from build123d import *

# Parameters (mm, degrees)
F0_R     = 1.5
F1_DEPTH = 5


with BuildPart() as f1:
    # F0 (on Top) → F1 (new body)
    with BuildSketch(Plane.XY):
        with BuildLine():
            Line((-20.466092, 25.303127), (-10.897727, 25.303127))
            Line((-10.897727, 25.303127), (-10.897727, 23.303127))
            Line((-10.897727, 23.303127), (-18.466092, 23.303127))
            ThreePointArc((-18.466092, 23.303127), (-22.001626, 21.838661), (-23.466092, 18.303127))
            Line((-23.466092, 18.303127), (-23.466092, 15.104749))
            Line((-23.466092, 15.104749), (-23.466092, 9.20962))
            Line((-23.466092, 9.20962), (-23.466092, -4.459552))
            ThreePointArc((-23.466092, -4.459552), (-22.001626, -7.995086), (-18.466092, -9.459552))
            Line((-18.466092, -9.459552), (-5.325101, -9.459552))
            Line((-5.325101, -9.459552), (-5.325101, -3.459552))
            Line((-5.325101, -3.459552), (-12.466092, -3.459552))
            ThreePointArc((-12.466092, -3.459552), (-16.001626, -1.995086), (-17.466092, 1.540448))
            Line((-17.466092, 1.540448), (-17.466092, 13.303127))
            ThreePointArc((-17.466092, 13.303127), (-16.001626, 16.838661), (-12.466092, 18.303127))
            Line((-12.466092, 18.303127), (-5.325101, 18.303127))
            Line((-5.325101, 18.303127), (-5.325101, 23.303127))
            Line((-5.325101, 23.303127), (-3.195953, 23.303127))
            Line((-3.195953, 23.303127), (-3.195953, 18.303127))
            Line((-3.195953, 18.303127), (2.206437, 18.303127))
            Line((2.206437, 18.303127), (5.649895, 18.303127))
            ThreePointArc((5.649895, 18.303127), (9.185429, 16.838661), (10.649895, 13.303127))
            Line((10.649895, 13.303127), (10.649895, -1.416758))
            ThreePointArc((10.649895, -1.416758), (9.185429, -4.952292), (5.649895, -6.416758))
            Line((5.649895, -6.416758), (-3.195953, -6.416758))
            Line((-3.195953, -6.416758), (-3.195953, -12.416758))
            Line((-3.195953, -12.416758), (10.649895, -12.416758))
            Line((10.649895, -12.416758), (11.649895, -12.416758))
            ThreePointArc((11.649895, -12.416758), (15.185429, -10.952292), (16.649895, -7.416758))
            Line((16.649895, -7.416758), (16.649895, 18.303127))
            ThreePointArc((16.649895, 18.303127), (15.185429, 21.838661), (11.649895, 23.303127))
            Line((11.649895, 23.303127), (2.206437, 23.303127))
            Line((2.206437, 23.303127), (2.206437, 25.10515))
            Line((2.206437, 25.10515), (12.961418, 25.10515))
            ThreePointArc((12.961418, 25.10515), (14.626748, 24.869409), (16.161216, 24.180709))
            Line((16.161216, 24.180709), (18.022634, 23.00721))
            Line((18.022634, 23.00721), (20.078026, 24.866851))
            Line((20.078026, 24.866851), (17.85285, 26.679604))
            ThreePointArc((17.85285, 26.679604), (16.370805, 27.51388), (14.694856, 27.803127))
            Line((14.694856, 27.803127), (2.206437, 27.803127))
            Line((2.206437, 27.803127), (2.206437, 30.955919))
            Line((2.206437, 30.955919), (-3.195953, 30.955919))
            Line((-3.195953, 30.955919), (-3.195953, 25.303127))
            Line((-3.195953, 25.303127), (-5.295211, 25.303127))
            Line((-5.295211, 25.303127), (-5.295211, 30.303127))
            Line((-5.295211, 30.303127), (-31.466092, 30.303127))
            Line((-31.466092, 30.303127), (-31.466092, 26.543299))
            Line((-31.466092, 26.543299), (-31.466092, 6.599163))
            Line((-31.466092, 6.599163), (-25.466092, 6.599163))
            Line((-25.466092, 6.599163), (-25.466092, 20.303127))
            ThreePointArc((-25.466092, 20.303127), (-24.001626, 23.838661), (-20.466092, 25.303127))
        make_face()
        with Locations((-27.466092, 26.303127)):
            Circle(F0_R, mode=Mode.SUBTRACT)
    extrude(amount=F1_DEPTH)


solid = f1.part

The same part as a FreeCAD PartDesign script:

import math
import FreeCAD as App
import Part
import Sketcher

doc = App.newDocument("Part")
params = doc.addObject("Spreadsheet::Sheet", "Params")
for row, (alias, value) in enumerate([
    ("sketch1_diameter", "3 mm"),
    ("sketch1_radius", "5 mm"),
    ("sketch1_radius2", "5.000002 mm"),
    ("sketch1_width", "6 mm"),
    ("sketch1_height", "2 mm"),
    ("pad1_length", "5 mm"),
], start=1):
    params.set(f"A{row}", alias)
    params.set(f"B{row}", "=" + value)
    params.setAlias(f"B{row}", alias)

body = doc.addObject("PartDesign::Body", "Body")

# Sketch on XY plane
sketch1 = body.newObject("Sketcher::SketchObject", "Sketch")
sketch1.AttachmentSupport = (doc.getObject("XY_Plane"), [""])
sketch1.MapMode = "FlatFace"
sketch1.addGeometry([
    Part.LineSegment(App.Vector(-20.466092, 25.303127, 0), App.Vector(-10.897727, 25.303127, 0)),  # 0
    Part.LineSegment(App.Vector(-10.897727, 25.303127, 0), App.Vector(-10.897727, 23.303127, 0)),  # 1
    Part.LineSegment(App.Vector(-10.897727, 23.303127, 0), App.Vector(-18.466092, 23.303127, 0)),  # 2
    Part.ArcOfCircle(Part.Circle(App.Vector(-18.466092, 18.303127, 0), App.Vector(0, 0, 1), 5), math.radians(89.999996), math.radians(180.000004)),  # 3
    Part.LineSegment(App.Vector(-23.466092, 18.303127, 0), App.Vector(-23.466092, -4.459552, 0)),  # 4
    Part.ArcOfCircle(Part.Circle(App.Vector(-18.466092, -4.459552, 0), App.Vector(0, 0, 1), 5), math.radians(179.999996), math.radians(270.000004)),  # 5
    Part.LineSegment(App.Vector(-18.466092, -9.459552, 0), App.Vector(-5.325101, -9.459552, 0)),  # 6
    Part.LineSegment(App.Vector(-5.325101, -9.459552, 0), App.Vector(-5.325101, -3.459552, 0)),  # 7
    Part.LineSegment(App.Vector(-5.325101, -3.459552, 0), App.Vector(-12.466092, -3.459552, 0)),  # 8
    Part.ArcOfCircle(Part.Circle(App.Vector(-12.466092, 1.540448, 0), App.Vector(0, 0, 1), 5), math.radians(179.999996), math.radians(270.000004)),  # 9
    Part.LineSegment(App.Vector(-17.466092, 1.540448, 0), App.Vector(-17.466092, 13.303127, 0)),  # 10
    Part.ArcOfCircle(Part.Circle(App.Vector(-12.466092, 13.303127, 0), App.Vector(0, 0, 1), 5), math.radians(89.999996), math.radians(180.000004)),  # 11
    Part.LineSegment(App.Vector(-12.466092, 18.303127, 0), App.Vector(-5.325101, 18.303127, 0)),  # 12
    Part.LineSegment(App.Vector(-5.325101, 18.303127, 0), App.Vector(-5.325101, 23.303127, 0)),  # 13
    Part.LineSegment(App.Vector(-5.325101, 23.303127, 0), App.Vector(-3.195953, 23.303127, 0)),  # 14
    Part.LineSegment(App.Vector(-3.195953, 23.303127, 0), App.Vector(-3.195953, 18.303127, 0)),  # 15
    Part.LineSegment(App.Vector(-3.195953, 18.303127, 0), App.Vector(5.649895, 18.303127, 0)),  # 16
    Part.ArcOfCircle(Part.Circle(App.Vector(5.649895, 13.303127, 0), App.Vector(0, 0, 1), 5), math.radians(-0.000004), math.radians(90.000004)),  # 17
    Part.LineSegment(App.Vector(10.649895, 13.303127, 0), App.Vector(10.649895, -1.416758, 0)),  # 18
    Part.ArcOfCircle(Part.Circle(App.Vector(5.649895, -1.416758, 0), App.Vector(0, 0, 1), 5), math.radians(-90.000004), math.radians(0.000004)),  # 19
    Part.LineSegment(App.Vector(5.649895, -6.416758, 0), App.Vector(-3.195953, -6.416758, 0)),  # 20
    Part.LineSegment(App.Vector(-3.195953, -6.416758, 0), App.Vector(-3.195953, -12.416758, 0)),  # 21
    Part.LineSegment(App.Vector(-3.195953, -12.416758, 0), App.Vector(11.649895, -12.416758, 0)),  # 22
    Part.ArcOfCircle(Part.Circle(App.Vector(11.649895, -7.416758, 0), App.Vector(0, 0, 1), 5), math.radians(-90.000004), math.radians(0.000004)),  # 23
    Part.LineSegment(App.Vector(16.649895, -7.416758, 0), App.Vector(16.649895, 18.303127, 0)),  # 24
    Part.ArcOfCircle(Part.Circle(App.Vector(11.649895, 18.303127, 0), App.Vector(0, 0, 1), 5), math.radians(-0.000004), math.radians(90.000004)),  # 25
    Part.LineSegment(App.Vector(11.649895, 23.303127, 0), App.Vector(2.206437, 23.303127, 0)),  # 26
    Part.LineSegment(App.Vector(2.206437, 23.303127, 0), App.Vector(2.206437, 25.10515, 0)),  # 27
    Part.LineSegment(App.Vector(2.206437, 25.10515, 0), App.Vector(12.961418, 25.10515, 0)),  # 28
    Part.ArcOfCircle(Part.Circle(App.Vector(12.96142, 19.105155, 0), App.Vector(0, 0, 1), 5.999995), math.radians(57.771325), math.radians(90.000024)),  # 29
    Part.LineSegment(App.Vector(16.161216, 24.180709, 0), App.Vector(18.022634, 23.00721, 0)),  # 30
    Part.LineSegment(App.Vector(18.022634, 23.00721, 0), App.Vector(20.078026, 24.866851, 0)),  # 31
    Part.LineSegment(App.Vector(20.078026, 24.866851, 0), App.Vector(17.85285, 26.679604, 0)),  # 32
    Part.ArcOfCircle(Part.Circle(App.Vector(14.694855, 22.803125, 0), App.Vector(0, 0, 1), 5.000002), math.radians(50.83183), math.radians(89.999992)),  # 33
    Part.LineSegment(App.Vector(14.694856, 27.803127, 0), App.Vector(2.206437, 27.803127, 0)),  # 34
    Part.LineSegment(App.Vector(2.206437, 27.803127, 0), App.Vector(2.206437, 30.955919, 0)),  # 35
    Part.LineSegment(App.Vector(2.206437, 30.955919, 0), App.Vector(-3.195953, 30.955919, 0)),  # 36
    Part.LineSegment(App.Vector(-3.195953, 30.955919, 0), App.Vector(-3.195953, 25.303127, 0)),  # 37
    Part.LineSegment(App.Vector(-3.195953, 25.303127, 0), App.Vector(-5.295211, 25.303127, 0)),  # 38
    Part.LineSegment(App.Vector(-5.295211, 25.303127, 0), App.Vector(-5.295211, 30.303127, 0)),  # 39
    Part.LineSegment(App.Vector(-5.295211, 30.303127, 0), App.Vector(-31.466092, 30.303127, 0)),  # 40
    Part.LineSegment(App.Vector(-31.466092, 30.303127, 0), App.Vector(-31.466092, 6.599163, 0)),  # 41
    Part.LineSegment(App.Vector(-31.466092, 6.599163, 0), App.Vector(-25.466092, 6.599163, 0)),  # 42
    Part.LineSegment(App.Vector(-25.466092, 6.599163, 0), App.Vector(-25.466092, 20.303127, 0)),  # 43
    Part.ArcOfCircle(Part.Circle(App.Vector(-20.466092, 20.303127, 0), App.Vector(0, 0, 1), 5), math.radians(89.999996), math.radians(180.000004)),  # 44
    Part.Circle(App.Vector(-27.466092, 26.303127, 0), App.Vector(0, 0, 1), 1.5),  # 45
], False)
sketch1.addConstraint([
    Sketcher.Constraint("Coincident", 0, 2, 1, 1),
    Sketcher.Constraint("Coincident", 1, 2, 2, 1),
    Sketcher.Constraint("Tangent", 2, 2, 3, 1),
    Sketcher.Constraint("Tangent", 3, 2, 4, 1),
    Sketcher.Constraint("Tangent", 4, 2, 5, 1),
    Sketcher.Constraint("Tangent", 5, 2, 6, 1),
    Sketcher.Constraint("Coincident", 6, 2, 7, 1),
    Sketcher.Constraint("Coincident", 7, 2, 8, 1),
    Sketcher.Constraint("Tangent", 8, 2, 9, 2),
    Sketcher.Constraint("Tangent", 9, 1, 10, 1),
    Sketcher.Constraint("Tangent", 10, 2, 11, 2),
    Sketcher.Constraint("Tangent", 11, 1, 12, 1),
    Sketcher.Constraint("Coincident", 12, 2, 13, 1),
    Sketcher.Constraint("Coincident", 13, 2, 14, 1),
    Sketcher.Constraint("Coincident", 14, 2, 15, 1),
    Sketcher.Constraint("Coincident", 15, 2, 16, 1),
    Sketcher.Constraint("Tangent", 16, 2, 17, 2),
    Sketcher.Constraint("Tangent", 17, 1, 18, 1),
    Sketcher.Constraint("Tangent", 18, 2, 19, 2),
    Sketcher.Constraint("Tangent", 19, 1, 20, 1),
    Sketcher.Constraint("Coincident", 20, 2, 21, 1),
    Sketcher.Constraint("Coincident", 21, 2, 22, 1),
    Sketcher.Constraint("Tangent", 22, 2, 23, 1),
    Sketcher.Constraint("Tangent", 23, 2, 24, 1),
    Sketcher.Constraint("Tangent", 24, 2, 25, 1),
    Sketcher.Constraint("Tangent", 25, 2, 26, 1),
    Sketcher.Constraint("Coincident", 26, 2, 27, 1),
    Sketcher.Constraint("Coincident", 27, 2, 28, 1),
    Sketcher.Constraint("Tangent", 28, 2, 29, 2),
    Sketcher.Constraint("Tangent", 29, 1, 30, 1),
    Sketcher.Constraint("Coincident", 30, 2, 31, 1),
    Sketcher.Constraint("Coincident", 31, 2, 32, 1),
    Sketcher.Constraint("Tangent", 32, 2, 33, 1),
    Sketcher.Constraint("Tangent", 33, 2, 34, 1),
    Sketcher.Constraint("Coincident", 34, 2, 35, 1),
    Sketcher.Constraint("Coincident", 35, 2, 36, 1),
    Sketcher.Constraint("Coincident", 36, 2, 37, 1),
    Sketcher.Constraint("Coincident", 37, 2, 38, 1),
    Sketcher.Constraint("Coincident", 38, 2, 39, 1),
    Sketcher.Constraint("Coincident", 39, 2, 40, 1),
    Sketcher.Constraint("Coincident", 40, 2, 41, 1),
    Sketcher.Constraint("Coincident", 41, 2, 42, 1),
    Sketcher.Constraint("Coincident", 42, 2, 43, 1),
    Sketcher.Constraint("Tangent", 43, 2, 44, 2),
    Sketcher.Constraint("Tangent", 44, 1, 0, 1),
    Sketcher.Constraint("Horizontal", 0),
    Sketcher.Constraint("Vertical", 1),
    Sketcher.Constraint("Horizontal", 2),
    Sketcher.Constraint("Vertical", 4),
    Sketcher.Constraint("Horizontal", 6),
    Sketcher.Constraint("Vertical", 7),
    Sketcher.Constraint("Horizontal", 8),
    Sketcher.Constraint("Vertical", 10),
    Sketcher.Constraint("Horizontal", 12),
    Sketcher.Constraint("Vertical", 13),
    Sketcher.Constraint("Horizontal", 14),
    Sketcher.Constraint("Vertical", 15),
    Sketcher.Constraint("Horizontal", 16),
    Sketcher.Constraint("Vertical", 18),
    Sketcher.Constraint("Horizontal", 20),
    Sketcher.Constraint("Vertical", 21),
    Sketcher.Constraint("Horizontal", 22),
    Sketcher.Constraint("Vertical", 24),
    Sketcher.Constraint("Horizontal", 26),
    Sketcher.Constraint("Vertical", 27),
    Sketcher.Constraint("Horizontal", 28),
    Sketcher.Constraint("Horizontal", 34),
    Sketcher.Constraint("Vertical", 35),
    Sketcher.Constraint("Horizontal", 36),
    Sketcher.Constraint("Vertical", 37),
    Sketcher.Constraint("Horizontal", 38),
    Sketcher.Constraint("Vertical", 39),
    Sketcher.Constraint("Horizontal", 40),
    Sketcher.Constraint("Vertical", 41),
    Sketcher.Constraint("Horizontal", 42),
    Sketcher.Constraint("Vertical", 43),
    Sketcher.Constraint("Equal", 3, 5),
    Sketcher.Constraint("Equal", 5, 9),
    Sketcher.Constraint("Equal", 9, 11),
    Sketcher.Constraint("Equal", 11, 17),
    Sketcher.Constraint("Equal", 17, 19),
    Sketcher.Constraint("Equal", 19, 23),
    Sketcher.Constraint("Equal", 23, 25),
    Sketcher.Constraint("Equal", 25, 44),
    Sketcher.Constraint("Horizontal", 11, 3, 17, 3),
    Sketcher.Constraint("Horizontal", 3, 3, 25, 3),
    Sketcher.Constraint("Horizontal", 3, 2, 11, 1),
    Sketcher.Constraint("Horizontal", 2, 2, 13, 2),
    Sketcher.Constraint("Horizontal", 0, 2, 37, 2),
    Sketcher.Constraint("Vertical", 7, 2, 12, 2),
    Sketcher.Constraint("Vertical", 15, 2, 20, 2),
    Sketcher.Constraint("Vertical", 27, 2, 34, 2),
    Sketcher.Constraint("Vertical", 21, 2, 36, 2),
    Sketcher.Constraint("Equal", 42, 7),
    Sketcher.Constraint("Equal", 7, 21),
    Sketcher.Constraint("Equal", 15, 39),
    Sketcher.Constraint("Diameter", 45, 3.0),
    Sketcher.Constraint("Radius", 3, 5.0),
    Sketcher.Constraint("Radius", 33, 5.000002),
    Sketcher.Constraint("DistanceX", 42, 1, 42, 2, 6.0),
    Sketcher.Constraint("DistanceY", 1, 2, 1, 1, 2.0),
    Sketcher.Constraint("DistanceX", 5, 3, 9, 3, 6.0),
    Sketcher.Constraint("DistanceX", 19, 3, 23, 3, 6.0),
    Sketcher.Constraint("DistanceX", 44, 3, 3, 3, 2.0),
    Sketcher.Constraint("DistanceX", 45, 3, 44, 3, 7.0),
    Sketcher.Constraint("DistanceY", 44, 3, 45, 3, 6.0),
    Sketcher.Constraint("DistanceY", 16, 2, 33, 3, 4.499998),
    Sketcher.Constraint("Radius", 29, 5.999995),
    Sketcher.Constraint("Distance", 32, 2.870101),
    Sketcher.Constraint("DistanceX", 6, 1, 6, 2, 13.140991),
    Sketcher.Constraint("DistanceX", 14, 1, 14, 2, 2.129148),
    Sketcher.Constraint("DistanceX", 28, 1, 28, 2, 10.754981),
    Sketcher.Constraint("DistanceX", 34, 2, 34, 1, 12.488419),
    Sketcher.Constraint("DistanceX", 36, 2, 36, 1, 5.40239),
    Sketcher.Constraint("DistanceX", 38, 2, 38, 1, 2.099258),
    Sketcher.Constraint("DistanceY", 4, 2, 4, 1, 22.762679),
    Sketcher.Constraint("DistanceX", 6, 2, -1, 1, 5.325101),
    Sketcher.Constraint("DistanceX", 28, 2, 29, 1, 3.199798),
    Sketcher.Constraint("DistanceY", 30, 2, 29, 1, 1.173499),
    Sketcher.Constraint("DistanceY", 31, 2, 28, 2, 0.238299),
    Sketcher.Constraint("DistanceX", 0, 1, 0, 2, 9.568365),
    Sketcher.Constraint("DistanceX", 16, 1, 16, 2, 8.845848),
    Sketcher.Constraint("DistanceY", 18, 2, 18, 1, 14.719885),
    Sketcher.Constraint("DistanceY", 27, 1, 27, 2, 1.802023),
    Sketcher.Constraint("DistanceY", 35, 1, 35, 2, 3.152792),
    Sketcher.Constraint("DistanceY", 41, 2, 41, 1, 23.703964),
    Sketcher.Constraint("DistanceY", 19, 3, -1, 1, 1.416758),
])
sketch1.setExpression("Constraints[96]", "Params.sketch1_diameter")
sketch1.setExpression("Constraints[97]", "Params.sketch1_radius")
sketch1.setExpression("Constraints[98]", "Params.sketch1_radius2")
sketch1.setExpression("Constraints[99]", "Params.sketch1_width")
sketch1.setExpression("Constraints[100]", "Params.sketch1_height")
pad1 = body.newObject("PartDesign::Pad", "Pad")
pad1.Profile = sketch1
pad1.setExpression("Length", "Params.pad1_length")

doc.recompute()
